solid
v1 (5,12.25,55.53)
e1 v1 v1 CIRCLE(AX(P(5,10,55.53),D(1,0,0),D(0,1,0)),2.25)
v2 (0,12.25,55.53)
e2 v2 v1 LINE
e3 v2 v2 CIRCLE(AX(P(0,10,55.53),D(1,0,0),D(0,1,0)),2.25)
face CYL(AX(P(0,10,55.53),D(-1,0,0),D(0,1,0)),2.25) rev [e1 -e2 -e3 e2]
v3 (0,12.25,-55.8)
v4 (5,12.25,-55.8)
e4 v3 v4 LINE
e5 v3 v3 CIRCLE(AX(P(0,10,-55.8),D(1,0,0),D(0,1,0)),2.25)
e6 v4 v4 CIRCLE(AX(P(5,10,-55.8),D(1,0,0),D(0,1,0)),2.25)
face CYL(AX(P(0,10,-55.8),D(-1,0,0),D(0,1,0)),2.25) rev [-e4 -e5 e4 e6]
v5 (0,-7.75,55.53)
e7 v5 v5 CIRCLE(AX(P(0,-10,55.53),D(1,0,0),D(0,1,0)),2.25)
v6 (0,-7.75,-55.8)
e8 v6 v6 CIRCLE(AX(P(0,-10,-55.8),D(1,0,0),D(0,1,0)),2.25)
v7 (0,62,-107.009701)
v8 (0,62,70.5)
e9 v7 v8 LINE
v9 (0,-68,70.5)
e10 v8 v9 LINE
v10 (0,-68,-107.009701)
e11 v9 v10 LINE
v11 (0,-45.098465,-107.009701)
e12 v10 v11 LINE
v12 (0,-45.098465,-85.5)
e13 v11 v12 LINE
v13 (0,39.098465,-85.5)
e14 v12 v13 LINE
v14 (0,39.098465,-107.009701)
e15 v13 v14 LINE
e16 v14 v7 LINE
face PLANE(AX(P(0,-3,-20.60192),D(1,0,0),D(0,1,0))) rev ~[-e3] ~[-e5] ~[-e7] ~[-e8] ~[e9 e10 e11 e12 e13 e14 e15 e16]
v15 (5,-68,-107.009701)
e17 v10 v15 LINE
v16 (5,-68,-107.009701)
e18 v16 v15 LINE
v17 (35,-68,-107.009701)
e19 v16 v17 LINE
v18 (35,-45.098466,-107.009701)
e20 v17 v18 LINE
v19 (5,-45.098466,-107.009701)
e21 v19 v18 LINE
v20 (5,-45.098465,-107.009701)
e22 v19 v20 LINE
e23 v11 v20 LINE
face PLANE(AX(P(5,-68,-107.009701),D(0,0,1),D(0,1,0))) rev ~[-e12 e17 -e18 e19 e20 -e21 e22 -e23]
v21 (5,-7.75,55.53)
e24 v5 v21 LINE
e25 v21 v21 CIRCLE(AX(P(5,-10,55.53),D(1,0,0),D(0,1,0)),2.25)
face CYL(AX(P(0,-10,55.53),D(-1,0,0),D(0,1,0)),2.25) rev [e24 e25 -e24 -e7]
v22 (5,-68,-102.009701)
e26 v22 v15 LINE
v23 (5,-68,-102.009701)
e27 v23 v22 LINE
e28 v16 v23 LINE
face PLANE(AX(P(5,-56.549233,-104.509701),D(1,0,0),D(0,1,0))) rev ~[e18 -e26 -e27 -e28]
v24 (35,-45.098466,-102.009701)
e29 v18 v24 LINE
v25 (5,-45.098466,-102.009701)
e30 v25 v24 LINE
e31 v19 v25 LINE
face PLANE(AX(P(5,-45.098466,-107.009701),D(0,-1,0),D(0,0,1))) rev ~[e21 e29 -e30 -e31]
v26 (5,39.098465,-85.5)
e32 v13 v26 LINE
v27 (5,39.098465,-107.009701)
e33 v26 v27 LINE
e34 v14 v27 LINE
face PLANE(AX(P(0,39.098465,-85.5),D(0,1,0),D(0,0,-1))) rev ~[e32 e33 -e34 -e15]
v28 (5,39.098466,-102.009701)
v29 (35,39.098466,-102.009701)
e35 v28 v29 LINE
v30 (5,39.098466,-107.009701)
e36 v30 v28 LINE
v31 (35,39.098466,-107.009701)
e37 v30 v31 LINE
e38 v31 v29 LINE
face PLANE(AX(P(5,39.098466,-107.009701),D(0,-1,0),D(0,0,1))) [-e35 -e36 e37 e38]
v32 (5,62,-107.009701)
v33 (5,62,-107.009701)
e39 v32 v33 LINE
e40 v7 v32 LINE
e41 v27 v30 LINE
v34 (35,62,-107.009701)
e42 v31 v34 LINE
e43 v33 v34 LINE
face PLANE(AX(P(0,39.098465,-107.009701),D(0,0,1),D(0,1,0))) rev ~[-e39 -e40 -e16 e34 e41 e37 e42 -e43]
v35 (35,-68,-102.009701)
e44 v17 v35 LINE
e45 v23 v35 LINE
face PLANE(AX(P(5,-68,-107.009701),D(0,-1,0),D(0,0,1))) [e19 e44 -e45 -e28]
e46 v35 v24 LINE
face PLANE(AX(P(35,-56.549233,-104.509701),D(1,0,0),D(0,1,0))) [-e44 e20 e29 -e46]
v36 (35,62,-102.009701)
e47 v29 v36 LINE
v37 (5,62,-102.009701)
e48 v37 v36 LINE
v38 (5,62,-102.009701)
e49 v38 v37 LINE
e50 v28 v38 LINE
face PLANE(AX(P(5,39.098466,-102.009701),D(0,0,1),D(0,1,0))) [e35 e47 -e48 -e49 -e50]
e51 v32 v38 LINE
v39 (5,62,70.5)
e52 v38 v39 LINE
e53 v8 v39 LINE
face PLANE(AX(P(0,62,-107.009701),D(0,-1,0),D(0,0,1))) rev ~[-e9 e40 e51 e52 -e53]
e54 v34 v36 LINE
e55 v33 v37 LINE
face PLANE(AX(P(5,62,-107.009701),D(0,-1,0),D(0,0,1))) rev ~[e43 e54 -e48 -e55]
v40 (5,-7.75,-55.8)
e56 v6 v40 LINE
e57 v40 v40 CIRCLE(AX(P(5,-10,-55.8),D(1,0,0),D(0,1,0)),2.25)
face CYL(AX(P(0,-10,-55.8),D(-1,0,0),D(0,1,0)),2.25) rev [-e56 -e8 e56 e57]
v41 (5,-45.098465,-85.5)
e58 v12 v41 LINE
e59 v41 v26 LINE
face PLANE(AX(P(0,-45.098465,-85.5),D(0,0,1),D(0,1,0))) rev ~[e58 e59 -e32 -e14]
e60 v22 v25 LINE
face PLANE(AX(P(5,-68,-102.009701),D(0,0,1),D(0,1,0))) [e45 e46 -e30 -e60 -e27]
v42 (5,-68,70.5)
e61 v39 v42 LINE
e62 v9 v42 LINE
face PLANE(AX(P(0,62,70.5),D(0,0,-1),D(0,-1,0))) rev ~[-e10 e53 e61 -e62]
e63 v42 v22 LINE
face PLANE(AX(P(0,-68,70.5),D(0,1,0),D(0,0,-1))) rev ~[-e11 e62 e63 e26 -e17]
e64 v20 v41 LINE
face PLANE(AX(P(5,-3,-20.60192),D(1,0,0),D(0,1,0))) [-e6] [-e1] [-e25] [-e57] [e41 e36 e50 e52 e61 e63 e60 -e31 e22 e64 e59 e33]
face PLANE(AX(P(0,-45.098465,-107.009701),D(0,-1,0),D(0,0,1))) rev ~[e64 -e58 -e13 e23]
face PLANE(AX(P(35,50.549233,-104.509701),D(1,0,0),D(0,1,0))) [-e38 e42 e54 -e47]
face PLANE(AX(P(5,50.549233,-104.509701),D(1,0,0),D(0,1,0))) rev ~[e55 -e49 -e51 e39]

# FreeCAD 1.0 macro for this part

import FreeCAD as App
import Part
import Sketcher

doc = App.newDocument("Part")
body = doc.addObject("PartDesign::Body", "Body")

sketch1 = body.newObject("Sketcher::SketchObject", "Sketch")
sketch1.AttachmentSupport = (doc.getObject("YZ_Plane"), [""])
sketch1.MapMode = "FlatFace"
sketch1.addGeometry([
    Part.LineSegment(App.Vector(62, 70.5, 0), App.Vector(-68, 70.5, 0)),
    Part.LineSegment(App.Vector(-68, 70.5, 0), App.Vector(-68, -107.009701, 0)),
    Part.LineSegment(App.Vector(-68, -107.009701, 0), App.Vector(-45.098465, -107.009701, 0)),
    Part.LineSegment(App.Vector(-45.098465, -107.009701, 0), App.Vector(-45.098465, -85.5, 0)),
    Part.LineSegment(App.Vector(-45.098465, -85.5, 0), App.Vector(39.098465, -85.5, 0)),
    Part.LineSegment(App.Vector(39.098465, -85.5, 0), App.Vector(39.098465, -107.009701, 0)),
    Part.LineSegment(App.Vector(39.098465, -107.009701, 0), App.Vector(62, -107.009701, 0)),
    Part.LineSegment(App.Vector(62, -107.009701, 0), App.Vector(62, 70.5, 0)),
    Part.Circle(App.Vector(-10, -55.8, 0), App.Vector(0, 0, 1), 2.25),
    Part.Circle(App.Vector(10, -55.8, 0), App.Vector(0, 0, 1), 2.25),
    Part.Circle(App.Vector(-10, 55.53, 0), App.Vector(0, 0, 1), 2.25),
    Part.Circle(App.Vector(10, 55.53, 0), App.Vector(0, 0, 1), 2.25),
], False)
sketch1.addConstraint([
    Sketcher.Constraint("Coincident", 0, 2, 1, 1),
    Sketcher.Constraint("Coincident", 1, 2, 2, 1),
    Sketcher.Constraint("Coincident", 2, 2, 3, 1),
    Sketcher.Constraint("Coincident", 3, 2, 4, 1),
    Sketcher.Constraint("Coincident", 4, 2, 5, 1),
    Sketcher.Constraint("Coincident", 5, 2, 6, 1),
    Sketcher.Constraint("Coincident", 6, 2, 7, 1),
    Sketcher.Constraint("Coincident", 7, 2, 0, 1),
    Sketcher.Constraint("Horizontal", 0),
    Sketcher.Constraint("Vertical", 1),
    Sketcher.Constraint("Horizontal", 2),
    Sketcher.Constraint("Vertical", 3),
    Sketcher.Constraint("Horizontal", 4),
    Sketcher.Constraint("Vertical", 5),
    Sketcher.Constraint("Horizontal", 6),
    Sketcher.Constraint("Vertical", 7),
    Sketcher.Constraint("Equal", 8, 9),
    Sketcher.Constraint("Equal", 9, 10),
    Sketcher.Constraint("Equal", 10, 11),
    Sketcher.Constraint("Symmetric", 8, 3, 9, 3, -2),
    Sketcher.Constraint("Symmetric", 10, 3, 11, 3, -2),
    Sketcher.Constraint("Horizontal", 2, 2, 5, 2),
    Sketcher.Constraint("Vertical", 8, 3, 10, 3),
    Sketcher.Constraint("Equal", 2, 6),
    Sketcher.Constraint("Diameter", 8, 4.5),
    Sketcher.Constraint("DistanceX", 0, 2, 0, 1, 130.0),
    Sketcher.Constraint("DistanceX", 8, 3, -1, 1, 10.0),
    Sketcher.Constraint("DistanceX", 0, 2, -1, 1, 68.0),
    Sketcher.Constraint("DistanceY", 8, 3, -1, 1, 55.8),
    Sketcher.Constraint("DistanceY", -1, 1, 0, 2, 70.5),
    Sketcher.Constraint("DistanceY", 3, 2, -1, 1, 85.5),
    Sketcher.Constraint("DistanceY", -1, 1, 10, 3, 55.53),
    Sketcher.Constraint("DistanceY", 1, 2, 1, 1, 177.509701),
    Sketcher.Constraint("DistanceX", 4, 1, 4, 2, 84.19693),
])
pad1 = body.newObject("PartDesign::Pad", "Pad")
pad1.Profile = sketch1
pad1.Length = 5

sketch2 = body.newObject("Sketcher::SketchObject", "Sketch001")
sketch2.AttachmentSupport = (doc.getObject("YZ_Plane"), [""])
sketch2.MapMode = "FlatFace"
sketch2.AttachmentOffset = App.Placement(App.Vector(0, 0, 5), App.Rotation())
sketch2.addGeometry([
    Part.LineSegment(App.Vector(-68, -102.009701, 0), App.Vector(-68, -107.009701, 0)),
    Part.LineSegment(App.Vector(-68, -107.009701, 0), App.Vector(-45.098466, -107.009701, 0)),
    Part.LineSegment(App.Vector(-45.098466, -107.009701, 0), App.Vector(-45.098466, -102.009701, 0)),
    Part.LineSegment(App.Vector(-45.098466, -102.009701, 0), App.Vector(-68, -102.009701, 0)),
    Part.LineSegment(App.Vector(39.098466, -102.009701, 0), App.Vector(39.098466, -107.009701, 0)),
    Part.LineSegment(App.Vector(39.098466, -107.009701, 0), App.Vector(62, -107.009701, 0)),
    Part.LineSegment(App.Vector(62, -107.009701, 0), App.Vector(62, -102.009701, 0)),
    Part.LineSegment(App.Vector(62, -102.009701, 0), App.Vector(39.098466, -102.009701, 0)),
], False)
sketch2.addConstraint([
    Sketcher.Constraint("Coincident", 0, 2, 1, 1),
    Sketcher.Constraint("Coincident", 1, 2, 2, 1),
    Sketcher.Constraint("Coincident", 2, 2, 3, 1),
    Sketcher.Constraint("Coincident", 3, 2, 0, 1),
    Sketcher.Constraint("Coincident", 4, 2, 5, 1),
    Sketcher.Constraint("Coincident", 5, 2, 6, 1),
    Sketcher.Constraint("Coincident", 6, 2, 7, 1),
    Sketcher.Constraint("Coincident", 7, 2, 4, 1),
    Sketcher.Constraint("Vertical", 0),
    Sketcher.Constraint("Horizontal", 1),
    Sketcher.Constraint("Vertical", 2),
    Sketcher.Constraint("Horizontal", 3),
    Sketcher.Constraint("Vertical", 4),
    Sketcher.Constraint("Horizontal", 5),
    Sketcher.Constraint("Vertical", 6),
    Sketcher.Constraint("Horizontal", 7),
    Sketcher.Constraint("Horizontal", 1, 2, 4, 2),
    Sketcher.Constraint("Horizontal", 3, 2, 6, 2),
    Sketcher.Constraint("Equal", 3, 5),
    Sketcher.Constraint("DistanceY", 0, 2, 0, 1, 5.0),
    Sketcher.Constraint("DistanceX", 0, 2, -1, 1, 68.0),
    Sketcher.Constraint("DistanceX", -1, 1, 5, 2, 62.0),
    Sketcher.Constraint("DistanceY", 0, 2, -1, 1, 107.009701),
    Sketcher.Constraint("DistanceX", 1, 1, 1, 2, 22.901535),
])
pad2 = body.newObject("PartDesign::Pad", "Pad001")
pad2.Profile = sketch2
pad2.Length = 30

doc.recompute()
